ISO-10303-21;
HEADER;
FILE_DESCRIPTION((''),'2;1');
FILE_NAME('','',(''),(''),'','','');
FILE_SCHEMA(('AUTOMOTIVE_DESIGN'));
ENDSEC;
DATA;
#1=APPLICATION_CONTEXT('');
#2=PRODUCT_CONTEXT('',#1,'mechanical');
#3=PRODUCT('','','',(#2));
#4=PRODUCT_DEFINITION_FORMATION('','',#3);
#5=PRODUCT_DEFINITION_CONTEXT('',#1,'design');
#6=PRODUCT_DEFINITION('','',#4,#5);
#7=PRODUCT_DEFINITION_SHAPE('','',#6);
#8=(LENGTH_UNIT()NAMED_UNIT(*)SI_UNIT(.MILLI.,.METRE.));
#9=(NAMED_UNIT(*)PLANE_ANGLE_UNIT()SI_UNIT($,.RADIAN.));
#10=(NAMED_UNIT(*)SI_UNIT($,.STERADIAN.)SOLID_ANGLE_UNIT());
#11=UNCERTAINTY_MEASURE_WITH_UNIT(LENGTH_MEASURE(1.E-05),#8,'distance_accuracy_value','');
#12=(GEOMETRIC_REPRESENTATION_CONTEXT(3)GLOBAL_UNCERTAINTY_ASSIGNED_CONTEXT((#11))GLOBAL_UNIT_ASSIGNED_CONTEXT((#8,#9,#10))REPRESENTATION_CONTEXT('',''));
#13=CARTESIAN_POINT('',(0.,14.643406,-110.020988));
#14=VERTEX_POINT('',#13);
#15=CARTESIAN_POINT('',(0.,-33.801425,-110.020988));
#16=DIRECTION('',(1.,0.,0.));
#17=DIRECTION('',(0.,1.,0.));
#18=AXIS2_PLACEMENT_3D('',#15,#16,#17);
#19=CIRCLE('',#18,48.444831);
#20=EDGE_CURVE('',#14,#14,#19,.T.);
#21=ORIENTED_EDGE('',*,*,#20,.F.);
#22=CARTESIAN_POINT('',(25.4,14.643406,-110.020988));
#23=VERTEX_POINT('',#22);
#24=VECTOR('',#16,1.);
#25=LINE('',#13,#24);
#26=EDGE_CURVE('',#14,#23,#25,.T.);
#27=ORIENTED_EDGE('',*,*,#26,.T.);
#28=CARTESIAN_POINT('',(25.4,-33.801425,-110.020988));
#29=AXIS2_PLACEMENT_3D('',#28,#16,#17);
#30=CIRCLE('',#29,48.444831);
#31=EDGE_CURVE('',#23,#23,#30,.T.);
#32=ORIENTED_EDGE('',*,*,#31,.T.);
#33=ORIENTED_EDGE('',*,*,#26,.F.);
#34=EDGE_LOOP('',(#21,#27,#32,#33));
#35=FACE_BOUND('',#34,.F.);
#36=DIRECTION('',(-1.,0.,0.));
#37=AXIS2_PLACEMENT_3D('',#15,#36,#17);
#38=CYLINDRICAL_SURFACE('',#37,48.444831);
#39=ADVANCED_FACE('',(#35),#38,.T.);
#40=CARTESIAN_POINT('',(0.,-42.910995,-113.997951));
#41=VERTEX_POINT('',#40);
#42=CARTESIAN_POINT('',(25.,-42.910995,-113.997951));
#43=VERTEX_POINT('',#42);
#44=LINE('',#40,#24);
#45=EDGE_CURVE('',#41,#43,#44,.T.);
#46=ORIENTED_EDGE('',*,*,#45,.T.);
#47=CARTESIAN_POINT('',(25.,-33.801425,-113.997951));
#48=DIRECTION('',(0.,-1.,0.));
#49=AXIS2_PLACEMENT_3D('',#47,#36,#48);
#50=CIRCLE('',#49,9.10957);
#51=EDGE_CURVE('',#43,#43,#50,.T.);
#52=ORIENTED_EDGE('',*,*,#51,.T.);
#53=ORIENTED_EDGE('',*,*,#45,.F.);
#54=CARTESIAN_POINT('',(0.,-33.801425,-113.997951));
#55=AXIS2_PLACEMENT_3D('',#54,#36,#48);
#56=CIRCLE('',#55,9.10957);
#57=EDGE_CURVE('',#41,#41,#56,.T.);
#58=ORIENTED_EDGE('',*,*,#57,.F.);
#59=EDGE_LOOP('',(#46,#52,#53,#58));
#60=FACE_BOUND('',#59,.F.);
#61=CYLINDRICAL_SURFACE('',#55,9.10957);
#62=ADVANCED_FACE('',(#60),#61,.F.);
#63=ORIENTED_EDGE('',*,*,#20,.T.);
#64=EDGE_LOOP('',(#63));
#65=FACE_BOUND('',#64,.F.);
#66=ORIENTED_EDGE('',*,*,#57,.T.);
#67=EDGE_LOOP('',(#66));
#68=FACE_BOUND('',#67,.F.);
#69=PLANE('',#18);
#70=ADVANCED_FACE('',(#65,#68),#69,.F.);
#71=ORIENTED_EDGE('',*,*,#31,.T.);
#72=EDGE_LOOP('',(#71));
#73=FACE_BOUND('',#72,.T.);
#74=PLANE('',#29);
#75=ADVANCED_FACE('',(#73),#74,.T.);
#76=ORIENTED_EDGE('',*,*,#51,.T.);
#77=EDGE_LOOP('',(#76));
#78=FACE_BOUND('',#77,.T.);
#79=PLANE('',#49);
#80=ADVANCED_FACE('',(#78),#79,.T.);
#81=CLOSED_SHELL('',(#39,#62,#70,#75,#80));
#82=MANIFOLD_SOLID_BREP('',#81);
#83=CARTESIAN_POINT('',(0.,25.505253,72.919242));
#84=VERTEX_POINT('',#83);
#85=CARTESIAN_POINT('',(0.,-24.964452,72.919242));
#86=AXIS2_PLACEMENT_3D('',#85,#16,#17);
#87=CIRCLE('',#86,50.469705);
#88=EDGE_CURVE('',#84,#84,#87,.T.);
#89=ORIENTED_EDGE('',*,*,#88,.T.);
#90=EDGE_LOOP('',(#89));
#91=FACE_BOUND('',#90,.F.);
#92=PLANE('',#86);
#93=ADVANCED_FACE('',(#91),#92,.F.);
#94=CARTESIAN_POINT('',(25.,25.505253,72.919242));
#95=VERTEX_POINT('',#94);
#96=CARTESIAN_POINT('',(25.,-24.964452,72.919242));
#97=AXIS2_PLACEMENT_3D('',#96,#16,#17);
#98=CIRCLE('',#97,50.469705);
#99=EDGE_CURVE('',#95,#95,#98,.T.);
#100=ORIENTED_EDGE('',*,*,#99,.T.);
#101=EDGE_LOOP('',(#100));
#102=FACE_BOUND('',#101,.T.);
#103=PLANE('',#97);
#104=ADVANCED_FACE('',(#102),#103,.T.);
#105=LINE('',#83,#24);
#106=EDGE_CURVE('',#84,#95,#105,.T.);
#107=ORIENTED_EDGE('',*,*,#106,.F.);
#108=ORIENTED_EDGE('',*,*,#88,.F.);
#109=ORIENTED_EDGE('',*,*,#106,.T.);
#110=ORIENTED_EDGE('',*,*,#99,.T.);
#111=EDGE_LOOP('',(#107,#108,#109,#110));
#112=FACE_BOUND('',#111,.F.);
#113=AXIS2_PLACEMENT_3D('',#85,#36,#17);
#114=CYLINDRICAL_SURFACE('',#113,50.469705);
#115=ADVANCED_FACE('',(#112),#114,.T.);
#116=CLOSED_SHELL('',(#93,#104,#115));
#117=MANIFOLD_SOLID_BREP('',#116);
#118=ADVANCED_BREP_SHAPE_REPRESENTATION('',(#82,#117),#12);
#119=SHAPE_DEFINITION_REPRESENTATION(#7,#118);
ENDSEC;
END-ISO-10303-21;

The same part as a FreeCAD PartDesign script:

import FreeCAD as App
import Part
import Sketcher
from FreeCAD import Vector

doc = App.newDocument("Part")
params = doc.addObject("Spreadsheet::Sheet", "Params")
for row, (alias, value) in enumerate([
    ("pad1_length", "25.4 mm"),
    ("pocket1_length", "25 mm"),
    ("pad2_length", "25 mm"),
], start=1):
    params.set(f"A{row}", alias)
    params.set(f"B{row}", "=" + value)
    params.setAlias(f"B{row}", alias)

body = doc.addObject("PartDesign::Body", "Body")

# Sketch on YZ plane
sketch1 = body.newObject("Sketcher::SketchObject", "Sketch")
sketch1.AttachmentSupport = (doc.getObject("YZ_Plane"), [""])
sketch1.MapMode = "FlatFace"
sketch1.addGeometry(Part.Circle(Vector(-33.801425, -110.020988, 0), Vector(0, 0, 1), 48.444831), False)
sketch1.addConstraint([
    Sketcher.Constraint("Diameter", 0, 96.889662),
    Sketcher.Constraint("DistanceY", 0, 3, -1, 1, 110.020988),
    Sketcher.Constraint("DistanceX", 0, 3, -1, 1, 33.801425),
])
pad1 = body.newObject("PartDesign::Pad", "Pad")
pad1.Profile = sketch1
pad1.setExpression("Length", "Params.pad1_length")

# Sketch on YZ plane
sketch2 = body.newObject("Sketcher::SketchObject", "Sketch001")
sketch2.AttachmentSupport = (doc.getObject("YZ_Plane"), [""])
sketch2.MapMode = "FlatFace"
sketch2.addGeometry(Part.Circle(Vector(-33.801425, -113.997951, 0), Vector(0, 0, 1), 9.10957), False)
sketch2.addConstraint([
    Sketcher.Constraint("Diameter", 0, 18.21914),
    Sketcher.Constraint("DistanceY", 0, 3, -1, 1, 113.997951),
    Sketcher.Constraint("DistanceX", 0, 3, -1, 1, 33.801425),
])
pocket1 = body.newObject("PartDesign::Pocket", "Pocket")
pocket1.Profile = sketch2
pocket1.setExpression("Length", "Params.pocket1_length")
pocket1.Reversed = True
body2 = doc.addObject("PartDesign::Body", "Body001")

# Sketch on YZ plane
sketch3 = body2.newObject("Sketcher::SketchObject", "Sketch002")
sketch3.AttachmentSupport = (doc.getObject("YZ_Plane001"), [""])
sketch3.MapMode = "FlatFace"
sketch3.addGeometry(Part.Circle(Vector(-24.964452, 72.919242, 0), Vector(0, 0, 1), 50.469705), False)
sketch3.addConstraint([
    Sketcher.Constraint("Diameter", 0, 100.93941),
    Sketcher.Constraint("DistanceY", -1, 1, 0, 3, 72.919242),
    Sketcher.Constraint("DistanceX", 0, 3, -1, 1, 24.964452),
])
pad2 = body2.newObject("PartDesign::Pad", "Pad001")
pad2.Profile = sketch3
pad2.setExpression("Length", "Params.pad2_length")

doc.recompute()
